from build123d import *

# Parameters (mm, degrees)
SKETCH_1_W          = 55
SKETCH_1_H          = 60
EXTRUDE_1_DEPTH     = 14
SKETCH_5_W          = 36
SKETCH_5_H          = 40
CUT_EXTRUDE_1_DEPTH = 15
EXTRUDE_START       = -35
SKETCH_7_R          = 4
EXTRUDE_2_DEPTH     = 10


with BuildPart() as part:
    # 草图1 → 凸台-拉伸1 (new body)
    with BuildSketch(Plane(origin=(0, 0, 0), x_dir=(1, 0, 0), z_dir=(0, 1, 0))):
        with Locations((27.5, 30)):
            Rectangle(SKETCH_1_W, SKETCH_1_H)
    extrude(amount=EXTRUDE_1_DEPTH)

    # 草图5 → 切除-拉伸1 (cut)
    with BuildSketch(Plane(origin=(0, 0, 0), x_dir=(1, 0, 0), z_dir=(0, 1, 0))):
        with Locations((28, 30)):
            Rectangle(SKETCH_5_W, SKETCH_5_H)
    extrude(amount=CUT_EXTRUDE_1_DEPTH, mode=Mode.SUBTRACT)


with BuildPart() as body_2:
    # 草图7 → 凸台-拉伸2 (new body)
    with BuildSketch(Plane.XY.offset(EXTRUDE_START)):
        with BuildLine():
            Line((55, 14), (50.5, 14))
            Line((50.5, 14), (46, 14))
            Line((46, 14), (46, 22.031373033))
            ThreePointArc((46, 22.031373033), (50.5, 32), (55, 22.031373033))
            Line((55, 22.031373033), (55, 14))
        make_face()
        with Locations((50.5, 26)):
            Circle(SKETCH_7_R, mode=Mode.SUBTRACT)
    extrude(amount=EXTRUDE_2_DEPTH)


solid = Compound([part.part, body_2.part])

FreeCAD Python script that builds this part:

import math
import FreeCAD as App
import Part
import Sketcher
from FreeCAD import Vector

doc = App.newDocument("Part")
params = doc.addObject("Spreadsheet::Sheet", "Params")
for row, (alias, value) in enumerate([
    ("sketch1_width", "55 mm"),
    ("sketch1_height", "60 mm"),
    ("pad1_length", "14 mm"),
    ("sketch2_width", "36 mm"),
    ("sketch2_height", "40 mm"),
    ("pocket1_length", "15 mm"),
    ("sketch3_diameter", "8 mm"),
    ("sketch3_radius", "6 mm"),
    ("sketch3_width", "9 mm"),
    ("pad2_length", "10 mm"),
], start=1):
    params.set(f"A{row}", alias)
    params.set(f"B{row}", "=" + value)
    params.setAlias(f"B{row}", alias)

body = doc.addObject("PartDesign::Body", "Body")

# Sketch on XZ plane
sketch1 = doc.addObject("Sketcher::SketchObject", "Sketch")
body.addObject(sketch1)
sketch1.AttachmentSupport = (doc.XZ_Plane, [""])
sketch1.MapMode = "FlatFace"
sketch1.addGeometry([
    Part.LineSegment(Vector(0, -60, 0), Vector(0, 0, 0)),
    Part.LineSegment(Vector(0, 0, 0), Vector(55, 0, 0)),
    Part.LineSegment(Vector(55, 0, 0), Vector(55, -60, 0)),
    Part.LineSegment(Vector(55, -60, 0), Vector(0, -60, 0)),
], False)
sketch1.addConstraint([
    Sketcher.Constraint("Coincident", 0, 2, 1, 1),
    Sketcher.Constraint("Coincident", 1, 2, 2, 1),
    Sketcher.Constraint("Coincident", 2, 2, 3, 1),
    Sketcher.Constraint("Coincident", 3, 2, 0, 1),
    Sketcher.Constraint("Vertical", 0),
    Sketcher.Constraint("Horizontal", 1),
    Sketcher.Constraint("Vertical", 2),
    Sketcher.Constraint("Horizontal", 3),
    Sketcher.Constraint("Coincident", 0, 2, -1, 1),
    Sketcher.Constraint("DistanceX", 1, 1, 1, 2, 55.0),
    Sketcher.Constraint("DistanceY", 0, 1, 0, 2, 60.0),
])
sketch1.setExpression("Constraints[9]", "Params.sketch1_width")
sketch1.setExpression("Constraints[10]", "Params.sketch1_height")
pad1 = doc.addObject("PartDesign::Pad", "Pad")
body.addObject(pad1)
pad1.Profile = sketch1
pad1.setExpression("Length", "Params.pad1_length")
pad1.Reversed = True

# Sketch on XZ plane
sketch2 = doc.addObject("Sketcher::SketchObject", "Sketch001")
body.addObject(sketch2)
sketch2.AttachmentSupport = (doc.XZ_Plane, [""])
sketch2.MapMode = "FlatFace"
sketch2.addGeometry([
    Part.LineSegment(Vector(10, -50, 0), Vector(10, -10, 0)),
    Part.LineSegment(Vector(10, -10, 0), Vector(46, -10, 0)),
    Part.LineSegment(Vector(46, -10, 0), Vector(46, -50, 0)),
    Part.LineSegment(Vector(46, -50, 0), Vector(10, -50, 0)),
], False)
sketch2.addConstraint([
    Sketcher.Constraint("Coincident", 0, 2, 1, 1),
    Sketcher.Constraint("Coincident", 1, 2, 2, 1),
    Sketcher.Constraint("Coincident", 2, 2, 3, 1),
    Sketcher.Constraint("Coincident", 3, 2, 0, 1),
    Sketcher.Constraint("Vertical", 0),
    Sketcher.Constraint("Horizontal", 1),
    Sketcher.Constraint("Vertical", 2),
    Sketcher.Constraint("Horizontal", 3),
    Sketcher.Constraint("DistanceX", 1, 1, 1, 2, 36.0),
    Sketcher.Constraint("DistanceY", 0, 1, 0, 2, 40.0),
    Sketcher.Constraint("DistanceX", -1, 1, 0, 2, 10.0),
    Sketcher.Constraint("DistanceY", 0, 2, -1, 1, 10.0),
])
sketch2.setExpression("Constraints[8]", "Params.sketch2_width")
sketch2.setExpression("Constraints[9]", "Params.sketch2_height")
pocket1 = doc.addObject("PartDesign::Pocket", "Pocket")
body.addObject(pocket1)
pocket1.Profile = sketch2
pocket1.setExpression("Length", "Params.pocket1_length")
body2 = doc.addObject("PartDesign::Body", "Body001")

# Sketch on XY plane
sketch3 = doc.addObject("Sketcher::SketchObject", "Sketch002")
body2.addObject(sketch3)
sketch3.AttachmentSupport = (doc.getObject("XY_Plane001"), [""])
sketch3.MapMode = "FlatFace"
sketch3.AttachmentOffset = App.Placement(Vector(0, 0, -35), App.Rotation())
sketch3.addGeometry([
    Part.LineSegment(Vector(46, 14, 0), Vector(55, 14, 0)),  # 0
    Part.LineSegment(Vector(55, 14, 0), Vector(55, 22.031373, 0)),  # 1
    Part.ArcOfCircle(Part.Circle(Vector(50.5, 26, 0), Vector(0, 0, 1), 6), math.radians(-41.409622), math.radians(221.409622)),  # 2
    Part.LineSegment(Vector(46, 22.031373, 0), Vector(46, 14, 0)),  # 3
    Part.Circle(Vector(50.5, 26, 0), Vector(0, 0, 1), 4),  # 4
], False)
sketch3.addConstraint([
    Sketcher.Constraint("Coincident", 0, 2, 1, 1),
    Sketcher.Constraint("Coincident", 1, 2, 2, 1),
    Sketcher.Constraint("Coincident", 2, 2, 3, 1),
    Sketcher.Constraint("Coincident", 3, 2, 0, 1),
    Sketcher.Constraint("Horizontal", 0),
    Sketcher.Constraint("Vertical", 1),
    Sketcher.Constraint("Vertical", 3),
    Sketcher.Constraint("Coincident", 4, 3, 2, 3),
    Sketcher.Constraint("Horizontal", 1, 2, 2, 2),
    Sketcher.Constraint("Diameter", 4, 8.0),
    Sketcher.Constraint("Radius", 2, 6.0),
    Sketcher.Constraint("DistanceX", 0, 1, 0, 2, 9.0),
    Sketcher.Constraint("DistanceY", -1, 1, 2, 3, 26.0),
    Sketcher.Constraint("DistanceX", -1, 1, 0, 2, 55.0),
    Sketcher.Constraint("DistanceY", -1, 1, 0, 2, 14.0),
])
sketch3.setExpression("Constraints[9]", "Params.sketch3_diameter")
sketch3.setExpression("Constraints[10]", "Params.sketch3_radius")
sketch3.setExpression("Constraints[11]", "Params.sketch3_width")
pad2 = doc.addObject("PartDesign::Pad", "Pad001")
body2.addObject(pad2)
pad2.Profile = sketch3
pad2.setExpression("Length", "Params.pad2_length")

doc.recompute()
